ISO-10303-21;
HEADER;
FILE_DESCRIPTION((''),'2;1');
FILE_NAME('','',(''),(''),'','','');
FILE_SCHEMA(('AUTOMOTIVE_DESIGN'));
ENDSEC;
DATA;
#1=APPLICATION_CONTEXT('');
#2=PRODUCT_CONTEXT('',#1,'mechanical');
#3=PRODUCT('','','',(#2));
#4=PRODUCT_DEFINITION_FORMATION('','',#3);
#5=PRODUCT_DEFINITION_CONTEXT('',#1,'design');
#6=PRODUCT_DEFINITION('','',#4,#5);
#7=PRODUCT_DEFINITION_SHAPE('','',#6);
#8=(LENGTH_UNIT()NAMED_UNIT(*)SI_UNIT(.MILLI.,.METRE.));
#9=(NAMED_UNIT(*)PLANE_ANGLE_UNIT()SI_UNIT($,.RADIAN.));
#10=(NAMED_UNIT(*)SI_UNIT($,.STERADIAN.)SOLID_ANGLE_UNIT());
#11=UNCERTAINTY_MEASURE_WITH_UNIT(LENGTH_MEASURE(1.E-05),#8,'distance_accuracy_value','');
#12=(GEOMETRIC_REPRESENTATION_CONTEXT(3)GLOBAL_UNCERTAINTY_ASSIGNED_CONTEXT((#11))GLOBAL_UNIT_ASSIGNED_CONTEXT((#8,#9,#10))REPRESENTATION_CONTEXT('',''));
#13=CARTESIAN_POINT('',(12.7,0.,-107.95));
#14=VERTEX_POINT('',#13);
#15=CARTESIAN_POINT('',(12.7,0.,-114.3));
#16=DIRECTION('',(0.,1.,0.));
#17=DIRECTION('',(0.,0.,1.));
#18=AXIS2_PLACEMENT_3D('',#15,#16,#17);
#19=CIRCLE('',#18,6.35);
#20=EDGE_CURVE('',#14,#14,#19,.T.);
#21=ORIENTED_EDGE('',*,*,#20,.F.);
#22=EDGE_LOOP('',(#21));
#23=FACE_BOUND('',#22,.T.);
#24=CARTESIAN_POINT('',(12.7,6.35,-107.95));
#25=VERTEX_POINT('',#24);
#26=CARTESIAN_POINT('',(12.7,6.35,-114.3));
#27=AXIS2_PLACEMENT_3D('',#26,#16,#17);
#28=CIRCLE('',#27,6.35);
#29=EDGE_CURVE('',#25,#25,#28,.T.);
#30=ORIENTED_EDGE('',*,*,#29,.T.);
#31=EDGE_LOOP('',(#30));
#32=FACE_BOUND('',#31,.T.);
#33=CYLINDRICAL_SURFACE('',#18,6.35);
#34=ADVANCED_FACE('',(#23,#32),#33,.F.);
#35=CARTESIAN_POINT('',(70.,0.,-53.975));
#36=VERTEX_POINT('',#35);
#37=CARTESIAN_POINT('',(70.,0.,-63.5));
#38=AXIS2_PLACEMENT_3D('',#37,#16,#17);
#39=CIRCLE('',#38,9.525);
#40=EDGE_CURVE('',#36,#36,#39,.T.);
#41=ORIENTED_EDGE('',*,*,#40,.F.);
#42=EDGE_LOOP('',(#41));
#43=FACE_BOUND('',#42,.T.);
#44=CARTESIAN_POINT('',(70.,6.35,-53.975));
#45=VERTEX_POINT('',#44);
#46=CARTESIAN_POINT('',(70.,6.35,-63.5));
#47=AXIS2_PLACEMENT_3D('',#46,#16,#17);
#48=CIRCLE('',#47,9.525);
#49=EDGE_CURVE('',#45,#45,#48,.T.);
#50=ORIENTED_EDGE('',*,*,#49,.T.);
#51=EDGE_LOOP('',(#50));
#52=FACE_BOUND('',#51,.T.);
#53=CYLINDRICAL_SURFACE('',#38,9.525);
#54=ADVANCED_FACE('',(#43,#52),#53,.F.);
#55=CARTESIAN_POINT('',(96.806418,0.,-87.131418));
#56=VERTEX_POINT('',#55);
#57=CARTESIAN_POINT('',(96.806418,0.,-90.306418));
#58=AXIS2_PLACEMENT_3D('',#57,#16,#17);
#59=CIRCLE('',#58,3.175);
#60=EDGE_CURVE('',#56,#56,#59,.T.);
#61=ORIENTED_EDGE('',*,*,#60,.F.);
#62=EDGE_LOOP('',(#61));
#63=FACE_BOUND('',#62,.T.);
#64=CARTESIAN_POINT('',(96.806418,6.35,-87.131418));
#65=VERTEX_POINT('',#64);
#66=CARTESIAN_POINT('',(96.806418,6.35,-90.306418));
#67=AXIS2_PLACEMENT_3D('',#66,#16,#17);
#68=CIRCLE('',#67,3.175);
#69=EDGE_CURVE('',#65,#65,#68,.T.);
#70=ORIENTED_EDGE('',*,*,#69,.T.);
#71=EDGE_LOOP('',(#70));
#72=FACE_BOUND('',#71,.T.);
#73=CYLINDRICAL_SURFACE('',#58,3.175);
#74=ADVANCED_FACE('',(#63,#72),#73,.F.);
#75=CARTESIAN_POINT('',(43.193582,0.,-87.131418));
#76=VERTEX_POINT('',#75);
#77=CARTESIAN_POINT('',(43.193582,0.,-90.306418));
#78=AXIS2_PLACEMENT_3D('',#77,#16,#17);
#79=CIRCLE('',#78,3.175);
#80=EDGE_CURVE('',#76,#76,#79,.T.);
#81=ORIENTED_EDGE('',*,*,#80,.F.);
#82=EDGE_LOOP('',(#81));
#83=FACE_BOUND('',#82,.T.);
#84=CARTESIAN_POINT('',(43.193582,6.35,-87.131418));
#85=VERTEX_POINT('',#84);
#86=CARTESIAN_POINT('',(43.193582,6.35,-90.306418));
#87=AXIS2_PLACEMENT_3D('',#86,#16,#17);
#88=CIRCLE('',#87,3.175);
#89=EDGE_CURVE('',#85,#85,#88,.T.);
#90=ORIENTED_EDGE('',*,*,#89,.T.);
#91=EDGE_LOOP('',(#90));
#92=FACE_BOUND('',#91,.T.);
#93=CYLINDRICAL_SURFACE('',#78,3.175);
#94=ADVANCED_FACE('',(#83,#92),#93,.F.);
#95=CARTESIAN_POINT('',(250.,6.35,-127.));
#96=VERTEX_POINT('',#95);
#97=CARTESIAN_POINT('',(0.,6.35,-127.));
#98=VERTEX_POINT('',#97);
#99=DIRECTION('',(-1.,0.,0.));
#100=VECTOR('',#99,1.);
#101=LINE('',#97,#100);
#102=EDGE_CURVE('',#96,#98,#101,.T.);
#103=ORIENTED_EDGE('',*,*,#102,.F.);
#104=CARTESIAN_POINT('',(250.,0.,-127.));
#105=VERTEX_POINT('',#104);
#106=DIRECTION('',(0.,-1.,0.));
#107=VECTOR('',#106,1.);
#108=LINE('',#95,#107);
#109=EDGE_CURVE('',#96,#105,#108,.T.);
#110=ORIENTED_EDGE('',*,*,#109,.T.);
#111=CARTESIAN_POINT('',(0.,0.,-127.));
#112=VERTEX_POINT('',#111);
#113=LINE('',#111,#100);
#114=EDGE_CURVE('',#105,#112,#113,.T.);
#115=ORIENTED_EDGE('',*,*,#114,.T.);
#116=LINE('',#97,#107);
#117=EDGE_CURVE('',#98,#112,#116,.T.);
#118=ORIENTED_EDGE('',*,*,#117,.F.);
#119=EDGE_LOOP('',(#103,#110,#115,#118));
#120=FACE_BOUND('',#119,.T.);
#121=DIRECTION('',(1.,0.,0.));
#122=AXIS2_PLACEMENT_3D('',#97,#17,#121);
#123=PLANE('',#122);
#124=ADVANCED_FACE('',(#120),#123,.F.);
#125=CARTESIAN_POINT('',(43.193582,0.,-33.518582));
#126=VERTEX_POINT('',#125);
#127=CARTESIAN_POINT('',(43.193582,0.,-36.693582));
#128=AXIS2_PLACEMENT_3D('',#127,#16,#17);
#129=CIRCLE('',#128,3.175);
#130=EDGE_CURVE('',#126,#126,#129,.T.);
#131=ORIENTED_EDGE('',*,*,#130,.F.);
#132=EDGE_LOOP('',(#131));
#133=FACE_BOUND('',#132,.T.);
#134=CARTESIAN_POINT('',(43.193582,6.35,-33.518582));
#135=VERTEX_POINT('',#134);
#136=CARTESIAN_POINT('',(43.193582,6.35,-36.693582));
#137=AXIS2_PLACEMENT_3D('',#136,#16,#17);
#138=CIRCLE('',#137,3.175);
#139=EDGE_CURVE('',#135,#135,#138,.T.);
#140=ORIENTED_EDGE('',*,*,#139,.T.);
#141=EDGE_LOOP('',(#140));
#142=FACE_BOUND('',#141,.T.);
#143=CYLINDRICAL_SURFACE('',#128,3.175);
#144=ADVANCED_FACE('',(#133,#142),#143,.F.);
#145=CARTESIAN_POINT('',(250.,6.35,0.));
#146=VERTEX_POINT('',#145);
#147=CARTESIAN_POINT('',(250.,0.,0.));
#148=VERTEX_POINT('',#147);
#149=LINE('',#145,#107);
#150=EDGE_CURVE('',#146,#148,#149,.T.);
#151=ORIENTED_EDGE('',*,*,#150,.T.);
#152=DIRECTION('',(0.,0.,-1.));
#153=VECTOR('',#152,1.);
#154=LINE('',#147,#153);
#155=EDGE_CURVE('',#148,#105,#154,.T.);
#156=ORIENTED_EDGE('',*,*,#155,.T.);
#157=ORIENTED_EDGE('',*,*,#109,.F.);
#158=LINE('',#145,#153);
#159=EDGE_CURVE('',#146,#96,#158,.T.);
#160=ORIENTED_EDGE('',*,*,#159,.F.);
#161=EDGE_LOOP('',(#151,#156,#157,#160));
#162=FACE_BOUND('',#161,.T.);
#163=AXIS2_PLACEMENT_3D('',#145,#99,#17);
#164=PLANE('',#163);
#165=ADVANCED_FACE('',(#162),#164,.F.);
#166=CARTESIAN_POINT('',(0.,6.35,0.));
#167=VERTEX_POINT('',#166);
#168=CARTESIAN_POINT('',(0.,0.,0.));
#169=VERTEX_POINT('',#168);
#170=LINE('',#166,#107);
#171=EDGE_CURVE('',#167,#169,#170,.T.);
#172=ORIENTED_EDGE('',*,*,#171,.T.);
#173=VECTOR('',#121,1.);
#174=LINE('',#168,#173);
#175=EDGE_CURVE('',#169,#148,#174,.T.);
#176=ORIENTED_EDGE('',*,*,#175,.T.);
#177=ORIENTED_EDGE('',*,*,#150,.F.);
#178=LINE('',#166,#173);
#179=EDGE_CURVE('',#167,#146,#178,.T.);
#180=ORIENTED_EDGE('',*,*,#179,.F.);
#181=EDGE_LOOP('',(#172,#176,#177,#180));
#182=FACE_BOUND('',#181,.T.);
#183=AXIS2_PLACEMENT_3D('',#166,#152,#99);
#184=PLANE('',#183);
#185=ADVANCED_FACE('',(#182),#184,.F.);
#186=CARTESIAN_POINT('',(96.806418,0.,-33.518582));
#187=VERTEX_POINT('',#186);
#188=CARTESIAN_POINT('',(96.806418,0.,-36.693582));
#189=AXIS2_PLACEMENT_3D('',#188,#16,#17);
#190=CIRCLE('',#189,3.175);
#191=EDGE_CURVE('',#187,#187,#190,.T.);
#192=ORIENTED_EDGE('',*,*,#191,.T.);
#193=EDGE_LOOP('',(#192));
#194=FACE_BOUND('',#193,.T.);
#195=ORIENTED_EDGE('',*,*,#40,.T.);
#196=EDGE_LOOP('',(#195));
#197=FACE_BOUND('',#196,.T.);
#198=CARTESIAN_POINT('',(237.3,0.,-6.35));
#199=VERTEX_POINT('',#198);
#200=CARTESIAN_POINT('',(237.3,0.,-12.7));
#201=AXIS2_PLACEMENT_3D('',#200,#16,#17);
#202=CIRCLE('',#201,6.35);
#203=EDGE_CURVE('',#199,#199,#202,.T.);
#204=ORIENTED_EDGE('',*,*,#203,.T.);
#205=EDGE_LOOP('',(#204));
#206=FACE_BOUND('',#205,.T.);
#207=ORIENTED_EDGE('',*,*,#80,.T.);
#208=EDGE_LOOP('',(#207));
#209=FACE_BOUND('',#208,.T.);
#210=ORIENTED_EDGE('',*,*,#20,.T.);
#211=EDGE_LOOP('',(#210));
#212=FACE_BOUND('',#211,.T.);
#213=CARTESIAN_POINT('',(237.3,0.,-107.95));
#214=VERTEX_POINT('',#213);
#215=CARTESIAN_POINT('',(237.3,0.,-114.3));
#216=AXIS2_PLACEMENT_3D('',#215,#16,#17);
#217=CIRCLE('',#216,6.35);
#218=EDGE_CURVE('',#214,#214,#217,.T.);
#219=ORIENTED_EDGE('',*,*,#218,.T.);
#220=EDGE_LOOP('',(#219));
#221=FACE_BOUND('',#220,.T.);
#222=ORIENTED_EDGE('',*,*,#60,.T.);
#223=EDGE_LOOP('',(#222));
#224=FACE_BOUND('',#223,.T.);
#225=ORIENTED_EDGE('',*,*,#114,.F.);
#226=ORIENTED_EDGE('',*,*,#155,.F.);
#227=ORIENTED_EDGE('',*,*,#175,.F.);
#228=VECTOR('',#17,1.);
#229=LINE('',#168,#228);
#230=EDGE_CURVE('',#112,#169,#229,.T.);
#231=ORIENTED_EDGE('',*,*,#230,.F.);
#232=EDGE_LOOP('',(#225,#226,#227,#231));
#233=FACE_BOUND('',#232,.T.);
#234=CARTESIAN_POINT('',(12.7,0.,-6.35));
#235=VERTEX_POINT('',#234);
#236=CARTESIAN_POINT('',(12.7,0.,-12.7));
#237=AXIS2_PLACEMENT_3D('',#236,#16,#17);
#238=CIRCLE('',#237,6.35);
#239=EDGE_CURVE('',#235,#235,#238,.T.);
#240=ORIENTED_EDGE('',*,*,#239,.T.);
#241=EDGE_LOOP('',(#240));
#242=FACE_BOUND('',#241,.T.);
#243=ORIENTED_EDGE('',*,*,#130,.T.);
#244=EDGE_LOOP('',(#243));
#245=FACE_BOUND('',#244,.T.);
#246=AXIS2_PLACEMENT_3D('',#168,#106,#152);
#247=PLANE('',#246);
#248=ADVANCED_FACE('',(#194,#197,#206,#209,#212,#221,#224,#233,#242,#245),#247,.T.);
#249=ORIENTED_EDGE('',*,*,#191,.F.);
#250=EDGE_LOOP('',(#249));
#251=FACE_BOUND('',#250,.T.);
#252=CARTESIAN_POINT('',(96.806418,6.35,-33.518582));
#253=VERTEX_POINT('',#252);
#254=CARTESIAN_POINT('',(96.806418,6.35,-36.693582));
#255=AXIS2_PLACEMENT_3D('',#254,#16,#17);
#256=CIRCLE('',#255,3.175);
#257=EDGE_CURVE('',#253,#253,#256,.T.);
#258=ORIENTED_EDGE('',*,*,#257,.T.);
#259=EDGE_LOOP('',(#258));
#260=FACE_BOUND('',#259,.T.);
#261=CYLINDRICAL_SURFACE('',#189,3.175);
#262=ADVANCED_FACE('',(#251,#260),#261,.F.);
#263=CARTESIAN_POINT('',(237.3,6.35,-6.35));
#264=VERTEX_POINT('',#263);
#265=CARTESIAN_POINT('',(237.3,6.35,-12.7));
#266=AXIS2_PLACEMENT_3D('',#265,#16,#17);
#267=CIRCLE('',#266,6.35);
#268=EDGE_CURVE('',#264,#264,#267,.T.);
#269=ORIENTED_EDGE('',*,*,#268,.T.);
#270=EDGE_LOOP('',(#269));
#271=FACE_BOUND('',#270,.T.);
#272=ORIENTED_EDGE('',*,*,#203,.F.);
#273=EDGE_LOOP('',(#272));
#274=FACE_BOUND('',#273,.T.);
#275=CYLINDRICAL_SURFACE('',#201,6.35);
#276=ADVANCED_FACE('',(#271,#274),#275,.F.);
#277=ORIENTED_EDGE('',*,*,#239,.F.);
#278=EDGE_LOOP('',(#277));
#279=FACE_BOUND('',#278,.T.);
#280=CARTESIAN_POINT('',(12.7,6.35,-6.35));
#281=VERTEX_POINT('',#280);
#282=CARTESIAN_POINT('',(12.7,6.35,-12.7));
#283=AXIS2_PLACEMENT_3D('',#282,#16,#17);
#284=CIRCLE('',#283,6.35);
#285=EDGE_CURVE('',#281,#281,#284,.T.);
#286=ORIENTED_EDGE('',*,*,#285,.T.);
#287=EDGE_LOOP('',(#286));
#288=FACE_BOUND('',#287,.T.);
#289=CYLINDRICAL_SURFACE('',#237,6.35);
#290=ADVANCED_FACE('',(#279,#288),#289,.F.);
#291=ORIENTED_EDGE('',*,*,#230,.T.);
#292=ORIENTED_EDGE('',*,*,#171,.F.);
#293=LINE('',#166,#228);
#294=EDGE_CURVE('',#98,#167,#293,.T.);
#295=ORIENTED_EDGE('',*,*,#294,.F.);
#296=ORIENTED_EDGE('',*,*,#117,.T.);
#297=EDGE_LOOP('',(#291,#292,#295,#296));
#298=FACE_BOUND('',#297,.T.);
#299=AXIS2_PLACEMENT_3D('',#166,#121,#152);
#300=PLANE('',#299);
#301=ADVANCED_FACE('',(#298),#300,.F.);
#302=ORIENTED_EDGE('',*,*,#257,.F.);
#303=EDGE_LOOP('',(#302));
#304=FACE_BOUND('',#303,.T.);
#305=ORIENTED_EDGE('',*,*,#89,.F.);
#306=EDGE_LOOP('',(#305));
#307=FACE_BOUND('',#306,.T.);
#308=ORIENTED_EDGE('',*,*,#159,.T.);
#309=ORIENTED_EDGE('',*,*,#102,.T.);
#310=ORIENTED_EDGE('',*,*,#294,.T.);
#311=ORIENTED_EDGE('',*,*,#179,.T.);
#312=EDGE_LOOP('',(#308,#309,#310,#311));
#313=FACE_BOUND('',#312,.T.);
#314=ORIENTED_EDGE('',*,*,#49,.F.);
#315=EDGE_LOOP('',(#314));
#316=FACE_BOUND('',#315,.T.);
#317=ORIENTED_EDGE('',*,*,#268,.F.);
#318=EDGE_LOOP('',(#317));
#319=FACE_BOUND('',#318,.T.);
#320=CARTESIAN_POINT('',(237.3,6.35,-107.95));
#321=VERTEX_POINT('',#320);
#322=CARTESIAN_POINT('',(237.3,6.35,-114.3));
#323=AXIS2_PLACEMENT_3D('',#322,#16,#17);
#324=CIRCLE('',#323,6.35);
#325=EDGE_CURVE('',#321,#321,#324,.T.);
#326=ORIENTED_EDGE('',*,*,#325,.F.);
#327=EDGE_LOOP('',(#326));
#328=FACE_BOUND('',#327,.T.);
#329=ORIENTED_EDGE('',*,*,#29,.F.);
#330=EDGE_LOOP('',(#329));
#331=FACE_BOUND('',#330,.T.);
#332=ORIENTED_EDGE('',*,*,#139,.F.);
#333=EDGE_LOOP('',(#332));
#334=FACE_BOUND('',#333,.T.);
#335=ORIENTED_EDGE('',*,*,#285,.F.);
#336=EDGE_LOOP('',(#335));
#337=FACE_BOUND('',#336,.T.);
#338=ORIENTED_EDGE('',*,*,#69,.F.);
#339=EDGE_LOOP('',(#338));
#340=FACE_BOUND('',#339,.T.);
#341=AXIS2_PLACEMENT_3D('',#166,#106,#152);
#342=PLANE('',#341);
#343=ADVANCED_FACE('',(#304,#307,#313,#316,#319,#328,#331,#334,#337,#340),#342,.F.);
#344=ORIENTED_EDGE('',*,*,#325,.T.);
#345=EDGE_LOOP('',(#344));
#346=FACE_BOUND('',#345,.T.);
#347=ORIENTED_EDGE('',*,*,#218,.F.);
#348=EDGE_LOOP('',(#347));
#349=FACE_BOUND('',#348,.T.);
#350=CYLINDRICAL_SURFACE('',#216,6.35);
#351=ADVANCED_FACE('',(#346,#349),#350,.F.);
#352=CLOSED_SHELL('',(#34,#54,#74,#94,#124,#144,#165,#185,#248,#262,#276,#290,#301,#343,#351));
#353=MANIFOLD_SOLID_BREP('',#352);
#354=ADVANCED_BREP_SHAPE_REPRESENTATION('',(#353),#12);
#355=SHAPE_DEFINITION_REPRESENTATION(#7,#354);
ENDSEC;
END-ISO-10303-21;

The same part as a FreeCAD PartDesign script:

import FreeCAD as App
import Part
import Sketcher
Q = App.Units.Quantity


def add_polygon(sketch, points):
    """Adds a closed chain of lines whose ends are joined by coincident constraints."""
    first, n = sketch.GeometryCount, len(points)
    for a, b in zip(points, points[1:] + points[:1]):
        sketch.addGeometry(Part.LineSegment(App.Vector(*a, 0), App.Vector(*b, 0)), False)
    for i in range(n):
        sketch.addConstraint(Sketcher.Constraint("Coincident", first + i, 2, first + (i + 1) % n, 1))

doc = App.newDocument("Part")
body = doc.addObject("PartDesign::Body", "Body")

# Sketch on XZ plane
sketch1 = body.newObject("Sketcher::SketchObject", "Sketch")
sketch1.AttachmentSupport = (doc.getObject("XZ_Plane"), [""])
sketch1.MapMode = "FlatFace"
add_polygon(sketch1, [(0, -127), (0, 0), (250, 0), (250, -127)])  # lines 0-3
sketch1.addConstraint([
    Sketcher.Constraint("Vertical", 0),
    Sketcher.Constraint("Horizontal", 1),
    Sketcher.Constraint("Vertical", 2),
    Sketcher.Constraint("Horizontal", 3),
    Sketcher.Constraint("Coincident", 0, 2, -1, 1),
    Sketcher.Constraint("DistanceY", 0, 1, 0, 2, Q("5 in")),
    Sketcher.Constraint("DistanceX", 1, 1, 1, 2, Q("250 mm")),
])
pad1 = body.newObject("PartDesign::Pad", "Pad")
pad1.Profile = sketch1
pad1.Length = Q("0.25 in")
pad1.Reversed = True

# Sketch on XZ plane
sketch2 = body.newObject("Sketcher::SketchObject", "Sketch001")
sketch2.AttachmentSupport = (doc.getObject("XZ_Plane"), [""])
sketch2.MapMode = "FlatFace"
sketch2.AttachmentOffset = App.Placement(App.Vector(0, 0, -0.25 * 25.4), App.Rotation())
sketch2.addGeometry([
    Part.Circle(App.Vector(237.3, -12.7, 0), App.Vector(0, 0, 1), 6.3),  # 0
    Part.Circle(App.Vector(237.3, -114.3, 0), App.Vector(0, 0, 1), 6.3),  # 1
    Part.Circle(App.Vector(12.7, -12.7, 0), App.Vector(0, 0, 1), 6.3),  # 2
    Part.Circle(App.Vector(12.7, -114.3, 0), App.Vector(0, 0, 1), 6.3),  # 3
    Part.Circle(App.Vector(43.2, -36.7, 0), App.Vector(0, 0, 1), 3.2),  # 4
    Part.Circle(App.Vector(96.8, -36.7, 0), App.Vector(0, 0, 1), 3.2),  # 5
    Part.Circle(App.Vector(96.8, -90.3, 0), App.Vector(0, 0, 1), 3.2),  # 6
    Part.Circle(App.Vector(43.2, -90.3, 0), App.Vector(0, 0, 1), 3.2),  # 7
    Part.Circle(App.Vector(70, -63.5, 0), App.Vector(0, 0, 1), 9.5),  # 8
], False)
sketch2.addConstraint([
    Sketcher.Constraint("Equal", 0, 1),
    Sketcher.Constraint("Equal", 1, 2),
    Sketcher.Constraint("Equal", 2, 3),
    Sketcher.Constraint("Equal", 4, 5),
    Sketcher.Constraint("Equal", 5, 6),
    Sketcher.Constraint("Equal", 6, 7),
    Sketcher.Constraint("Horizontal", 0, 3, 2, 3),
    Sketcher.Constraint("Horizontal", 1, 3, 3, 3),
    Sketcher.Constraint("Horizontal", 4, 3, 5, 3),
    Sketcher.Constraint("Horizontal", 6, 3, 7, 3),
    Sketcher.Constraint("Vertical", 0, 3, 1, 3),
    Sketcher.Constraint("Vertical", 2, 3, 3, 3),
    Sketcher.Constraint("Vertical", 5, 3, 6, 3),
    Sketcher.Constraint("Vertical", 4, 3, 7, 3),
    Sketcher.Constraint("Diameter", 0, Q("0.5 in")),
    Sketcher.Constraint("Diameter", 4, Q("0.25 in")),
    Sketcher.Constraint("Diameter", 8, Q("0.75 in")),
    Sketcher.Constraint("DistanceY", 1, 3, 0, 3, Q("4 in")),
    Sketcher.Constraint("DistanceY", 8, 3, 2, 3, Q("2 in")),
    Sketcher.Constraint("DistanceY", 0, 3, -1, 1, Q("0.5 in")),
    Sketcher.Constraint("DistanceX", -1, 1, 2, 3, Q("0.5 in")),
    Sketcher.Constraint("DistanceX", -1, 1, 0, 3, Q("237.3 mm")),
    Sketcher.Constraint("DistanceX", -1, 1, 8, 3, Q("70 mm")),
    Sketcher.Constraint("DistanceX", -1, 1, 4, 3, Q("43.193582 mm")),
    Sketcher.Constraint("DistanceY", 4, 3, -1, 1, Q("36.693582 mm")),
    Sketcher.Constraint("DistanceX", -1, 1, 5, 3, Q("96.806418 mm")),
    Sketcher.Constraint("DistanceY", 6, 3, -1, 1, Q("90.306418 mm")),
])
pocket1 = body.newObject("PartDesign::Pocket", "Pocket")
pocket1.Profile = sketch2
pocket1.Type = "ThroughAll"
pocket1.Reversed = True

doc.recompute()
